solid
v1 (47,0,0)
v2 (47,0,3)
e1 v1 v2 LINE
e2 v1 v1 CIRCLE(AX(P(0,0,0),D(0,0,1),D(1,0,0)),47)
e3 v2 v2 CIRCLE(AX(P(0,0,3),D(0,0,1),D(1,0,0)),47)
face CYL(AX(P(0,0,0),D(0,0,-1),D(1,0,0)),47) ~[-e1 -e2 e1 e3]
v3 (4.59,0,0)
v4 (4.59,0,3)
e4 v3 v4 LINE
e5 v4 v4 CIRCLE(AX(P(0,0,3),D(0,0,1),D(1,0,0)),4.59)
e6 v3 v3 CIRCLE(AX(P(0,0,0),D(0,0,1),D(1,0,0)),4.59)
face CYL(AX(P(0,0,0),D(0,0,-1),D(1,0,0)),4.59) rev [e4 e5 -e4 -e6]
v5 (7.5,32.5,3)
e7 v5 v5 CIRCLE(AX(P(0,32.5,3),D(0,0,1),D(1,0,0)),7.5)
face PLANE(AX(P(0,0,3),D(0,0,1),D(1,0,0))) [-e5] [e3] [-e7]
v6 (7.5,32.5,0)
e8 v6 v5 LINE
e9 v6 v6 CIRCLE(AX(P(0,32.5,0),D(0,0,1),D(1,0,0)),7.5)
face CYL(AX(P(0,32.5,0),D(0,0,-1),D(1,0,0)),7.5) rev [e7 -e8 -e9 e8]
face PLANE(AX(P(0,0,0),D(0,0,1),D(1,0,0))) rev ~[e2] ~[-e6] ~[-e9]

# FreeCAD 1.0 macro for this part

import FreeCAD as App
import Part
import Sketcher

V = App.Vector
Q = App.Units.Quantity

doc = App.newDocument("Part")
body = doc.addObject("PartDesign::Body", "Body")

# Sketch on XY plane
sketch1 = body.newObject("Sketcher::SketchObject", "Sketch")
sketch1.AttachmentSupport = (doc.getObject("XY_Plane"), [""])
sketch1.MapMode = "FlatFace"
sketch1.addGeometry([
    Part.Circle(V(0, 0, 0), V(0, 0, 1), 47),
    Part.Circle(V(0, 0, 0), V(0, 0, 1), 4.59),
    Part.Circle(V(0, 32.5, 0), V(0, 0, 1), 7.5),
], False)
sketch1.addConstraint([
    Sketcher.Constraint("Coincident", 0, 3, -1, 1),
    Sketcher.Constraint("Coincident", 1, 3, -1, 1),
    Sketcher.Constraint("PointOnObject", 2, 3, -2),
    Sketcher.Constraint("Diameter", 0, Q("94 mm")),
    Sketcher.Constraint("Diameter", 2, Q("15 mm")),
    Sketcher.Constraint("Diameter", 1, Q("9.18 mm")),
    Sketcher.Constraint("DistanceY", -1, 1, 2, 3, Q("32.5 mm")),
])
pad1 = body.newObject("PartDesign::Pad", "Pad")
pad1.Profile = sketch1
pad1.Length = 3

doc.recompute()
